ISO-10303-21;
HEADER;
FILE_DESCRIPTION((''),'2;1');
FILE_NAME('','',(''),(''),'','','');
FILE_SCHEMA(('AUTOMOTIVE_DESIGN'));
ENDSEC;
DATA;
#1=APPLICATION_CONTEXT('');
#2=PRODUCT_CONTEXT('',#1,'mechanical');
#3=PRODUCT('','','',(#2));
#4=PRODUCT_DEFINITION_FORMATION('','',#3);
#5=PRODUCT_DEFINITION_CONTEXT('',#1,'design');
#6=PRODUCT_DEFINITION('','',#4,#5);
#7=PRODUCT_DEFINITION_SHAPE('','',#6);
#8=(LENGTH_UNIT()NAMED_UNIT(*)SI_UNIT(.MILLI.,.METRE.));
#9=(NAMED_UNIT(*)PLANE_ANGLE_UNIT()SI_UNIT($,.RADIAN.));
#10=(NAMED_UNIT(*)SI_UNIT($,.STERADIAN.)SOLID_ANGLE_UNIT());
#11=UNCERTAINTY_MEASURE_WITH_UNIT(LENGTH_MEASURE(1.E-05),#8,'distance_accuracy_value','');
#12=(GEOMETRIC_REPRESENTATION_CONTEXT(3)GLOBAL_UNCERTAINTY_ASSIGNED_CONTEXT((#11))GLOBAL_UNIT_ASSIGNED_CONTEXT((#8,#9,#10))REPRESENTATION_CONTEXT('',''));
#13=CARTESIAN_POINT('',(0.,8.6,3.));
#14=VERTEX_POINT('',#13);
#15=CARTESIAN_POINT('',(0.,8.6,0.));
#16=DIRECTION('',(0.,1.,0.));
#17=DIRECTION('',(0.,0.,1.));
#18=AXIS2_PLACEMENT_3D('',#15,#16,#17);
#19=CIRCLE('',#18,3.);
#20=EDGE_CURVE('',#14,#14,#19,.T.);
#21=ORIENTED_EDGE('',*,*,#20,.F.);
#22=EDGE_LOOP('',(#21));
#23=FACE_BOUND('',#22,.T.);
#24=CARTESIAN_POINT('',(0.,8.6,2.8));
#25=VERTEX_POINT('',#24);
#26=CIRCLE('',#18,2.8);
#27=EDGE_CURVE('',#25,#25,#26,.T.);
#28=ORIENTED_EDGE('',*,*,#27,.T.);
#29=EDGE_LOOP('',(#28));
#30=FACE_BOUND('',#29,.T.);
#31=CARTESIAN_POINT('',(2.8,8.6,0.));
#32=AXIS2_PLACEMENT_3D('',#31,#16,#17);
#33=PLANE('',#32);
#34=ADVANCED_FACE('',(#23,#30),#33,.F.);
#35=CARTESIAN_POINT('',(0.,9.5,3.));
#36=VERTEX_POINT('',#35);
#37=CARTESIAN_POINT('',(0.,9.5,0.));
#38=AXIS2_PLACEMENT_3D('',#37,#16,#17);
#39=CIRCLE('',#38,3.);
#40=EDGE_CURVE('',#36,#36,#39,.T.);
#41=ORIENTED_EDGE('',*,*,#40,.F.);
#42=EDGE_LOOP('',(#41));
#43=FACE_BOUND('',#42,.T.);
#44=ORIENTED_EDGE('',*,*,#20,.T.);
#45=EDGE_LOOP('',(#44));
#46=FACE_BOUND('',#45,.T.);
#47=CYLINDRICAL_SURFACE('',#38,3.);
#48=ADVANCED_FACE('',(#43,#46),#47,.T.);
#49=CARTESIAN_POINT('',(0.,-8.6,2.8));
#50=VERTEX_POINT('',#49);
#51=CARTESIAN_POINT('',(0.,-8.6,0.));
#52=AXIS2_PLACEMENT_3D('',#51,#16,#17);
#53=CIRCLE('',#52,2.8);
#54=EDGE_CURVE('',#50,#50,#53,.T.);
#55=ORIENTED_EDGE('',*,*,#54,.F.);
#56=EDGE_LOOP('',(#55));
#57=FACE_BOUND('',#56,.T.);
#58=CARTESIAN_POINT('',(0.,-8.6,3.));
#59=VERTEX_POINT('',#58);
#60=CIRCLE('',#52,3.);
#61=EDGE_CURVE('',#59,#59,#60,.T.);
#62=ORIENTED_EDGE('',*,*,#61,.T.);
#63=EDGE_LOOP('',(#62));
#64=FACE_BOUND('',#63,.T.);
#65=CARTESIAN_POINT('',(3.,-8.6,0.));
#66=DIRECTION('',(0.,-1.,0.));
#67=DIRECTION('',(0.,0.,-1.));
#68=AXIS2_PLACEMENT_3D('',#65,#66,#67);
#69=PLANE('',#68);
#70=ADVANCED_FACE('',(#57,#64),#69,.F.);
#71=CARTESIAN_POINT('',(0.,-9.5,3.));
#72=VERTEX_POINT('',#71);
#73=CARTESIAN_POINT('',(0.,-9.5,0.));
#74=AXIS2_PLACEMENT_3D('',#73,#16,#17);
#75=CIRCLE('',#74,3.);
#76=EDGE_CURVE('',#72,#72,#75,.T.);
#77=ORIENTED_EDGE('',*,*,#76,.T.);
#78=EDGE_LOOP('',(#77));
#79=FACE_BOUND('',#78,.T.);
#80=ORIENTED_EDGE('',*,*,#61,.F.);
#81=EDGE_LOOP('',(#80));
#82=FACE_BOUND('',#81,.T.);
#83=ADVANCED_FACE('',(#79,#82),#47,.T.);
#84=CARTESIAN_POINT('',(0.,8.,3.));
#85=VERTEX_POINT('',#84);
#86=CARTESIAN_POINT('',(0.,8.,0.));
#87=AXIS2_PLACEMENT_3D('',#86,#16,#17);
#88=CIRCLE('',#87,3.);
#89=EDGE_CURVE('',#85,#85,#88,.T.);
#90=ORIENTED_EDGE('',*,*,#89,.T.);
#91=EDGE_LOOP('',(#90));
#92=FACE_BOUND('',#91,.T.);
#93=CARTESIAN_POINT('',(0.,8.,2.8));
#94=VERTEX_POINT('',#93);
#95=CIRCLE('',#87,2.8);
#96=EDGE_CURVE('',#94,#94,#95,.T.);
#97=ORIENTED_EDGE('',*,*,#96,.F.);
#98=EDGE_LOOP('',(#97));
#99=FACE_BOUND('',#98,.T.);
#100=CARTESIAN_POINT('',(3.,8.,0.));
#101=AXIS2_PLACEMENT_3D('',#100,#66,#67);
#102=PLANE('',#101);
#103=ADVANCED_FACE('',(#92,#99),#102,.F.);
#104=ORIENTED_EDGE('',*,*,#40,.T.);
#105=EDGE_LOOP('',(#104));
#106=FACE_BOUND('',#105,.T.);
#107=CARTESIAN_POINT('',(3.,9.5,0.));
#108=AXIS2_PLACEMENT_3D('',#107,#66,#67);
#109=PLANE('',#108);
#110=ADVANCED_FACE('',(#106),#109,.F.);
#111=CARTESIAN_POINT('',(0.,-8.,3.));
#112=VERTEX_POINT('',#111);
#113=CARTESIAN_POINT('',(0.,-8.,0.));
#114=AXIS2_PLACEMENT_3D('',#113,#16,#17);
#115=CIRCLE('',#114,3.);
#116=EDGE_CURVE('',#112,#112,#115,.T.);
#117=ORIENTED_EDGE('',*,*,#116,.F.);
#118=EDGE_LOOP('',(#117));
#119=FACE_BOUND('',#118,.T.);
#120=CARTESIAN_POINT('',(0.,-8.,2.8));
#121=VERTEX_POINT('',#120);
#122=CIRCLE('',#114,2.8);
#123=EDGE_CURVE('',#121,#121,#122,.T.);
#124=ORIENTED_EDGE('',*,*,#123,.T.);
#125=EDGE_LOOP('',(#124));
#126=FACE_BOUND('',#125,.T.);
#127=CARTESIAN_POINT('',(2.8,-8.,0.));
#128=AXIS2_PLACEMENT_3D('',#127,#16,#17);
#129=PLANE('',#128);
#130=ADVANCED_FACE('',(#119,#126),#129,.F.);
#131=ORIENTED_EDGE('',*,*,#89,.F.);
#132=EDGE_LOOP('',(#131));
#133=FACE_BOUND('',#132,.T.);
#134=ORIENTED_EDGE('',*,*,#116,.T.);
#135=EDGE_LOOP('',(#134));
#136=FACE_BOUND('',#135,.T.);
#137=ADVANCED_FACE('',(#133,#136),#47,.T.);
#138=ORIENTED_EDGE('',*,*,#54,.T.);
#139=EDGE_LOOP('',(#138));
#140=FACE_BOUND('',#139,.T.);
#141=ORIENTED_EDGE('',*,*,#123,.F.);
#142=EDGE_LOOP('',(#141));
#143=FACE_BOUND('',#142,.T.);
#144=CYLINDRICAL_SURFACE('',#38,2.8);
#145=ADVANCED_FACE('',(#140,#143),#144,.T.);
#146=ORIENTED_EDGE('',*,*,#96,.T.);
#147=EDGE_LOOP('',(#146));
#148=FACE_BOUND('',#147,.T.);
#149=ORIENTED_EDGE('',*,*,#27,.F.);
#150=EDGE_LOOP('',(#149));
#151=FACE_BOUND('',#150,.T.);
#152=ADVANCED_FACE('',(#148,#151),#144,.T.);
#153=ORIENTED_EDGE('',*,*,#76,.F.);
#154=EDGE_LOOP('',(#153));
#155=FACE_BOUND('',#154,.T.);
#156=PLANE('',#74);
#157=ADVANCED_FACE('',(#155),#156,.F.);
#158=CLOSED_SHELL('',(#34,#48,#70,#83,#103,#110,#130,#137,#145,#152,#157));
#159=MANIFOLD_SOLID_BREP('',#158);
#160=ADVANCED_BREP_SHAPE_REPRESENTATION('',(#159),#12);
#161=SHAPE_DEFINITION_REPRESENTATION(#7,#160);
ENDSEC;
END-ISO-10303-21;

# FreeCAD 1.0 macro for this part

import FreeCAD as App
import Part
import Sketcher

doc = App.newDocument("Part")
body = doc.addObject("PartDesign::Body", "Body")

sketch1 = body.newObject("Sketcher::SketchObject", "Sketch")
sketch1.AttachmentSupport = (doc.getObject("XY_Plane"), [""])
sketch1.MapMode = "FlatFace"
sketch1.addGeometry([
    Part.LineSegment(App.Vector(0, -9.5, 0), App.Vector(3, -9.5, 0)),
    Part.LineSegment(App.Vector(3, -9.5, 0), App.Vector(3, -8.6, 0)),
    Part.LineSegment(App.Vector(3, -8.6, 0), App.Vector(2.8, -8.6, 0)),
    Part.LineSegment(App.Vector(2.8, -8.6, 0), App.Vector(2.8, -8, 0)),
    Part.LineSegment(App.Vector(2.8, -8, 0), App.Vector(3, -8, 0)),
    Part.LineSegment(App.Vector(3, -8, 0), App.Vector(3, 8, 0)),
    Part.LineSegment(App.Vector(3, 8, 0), App.Vector(2.8, 8, 0)),
    Part.LineSegment(App.Vector(2.8, 8, 0), App.Vector(2.8, 8.6, 0)),
    Part.LineSegment(App.Vector(2.8, 8.6, 0), App.Vector(3, 8.6, 0)),
    Part.LineSegment(App.Vector(3, 8.6, 0), App.Vector(3, 9.5, 0)),
    Part.LineSegment(App.Vector(3, 9.5, 0), App.Vector(0, 9.5, 0)),
    Part.LineSegment(App.Vector(0, 9.5, 0), App.Vector(0, -9.5, 0)),
], False)
sketch1.addConstraint([
    Sketcher.Constraint("Coincident", 0, 2, 1, 1),
    Sketcher.Constraint("Coincident", 1, 2, 2, 1),
    Sketcher.Constraint("Coincident", 2, 2, 3, 1),
    Sketcher.Constraint("Coincident", 3, 2, 4, 1),
    Sketcher.Constraint("Coincident", 4, 2, 5, 1),
    Sketcher.Constraint("Coincident", 5, 2, 6, 1),
    Sketcher.Constraint("Coincident", 6, 2, 7, 1),
    Sketcher.Constraint("Coincident", 7, 2, 8, 1),
    Sketcher.Constraint("Coincident", 8, 2, 9, 1),
    Sketcher.Constraint("Coincident", 9, 2, 10, 1),
    Sketcher.Constraint("Coincident", 10, 2, 11, 1),
    Sketcher.Constraint("Coincident", 11, 2, 0, 1),
    Sketcher.Constraint("Horizontal", 0),
    Sketcher.Constraint("Vertical", 1),
    Sketcher.Constraint("Horizontal", 2),
    Sketcher.Constraint("Vertical", 3),
    Sketcher.Constraint("Horizontal", 4),
    Sketcher.Constraint("Vertical", 5),
    Sketcher.Constraint("Horizontal", 6),
    Sketcher.Constraint("Vertical", 7),
    Sketcher.Constraint("Horizontal", 8),
    Sketcher.Constraint("Vertical", 9),
    Sketcher.Constraint("Horizontal", 10),
    Sketcher.Constraint("Vertical", 11),
    Sketcher.Constraint("Symmetric", 10, 2, 11, 2, -1, 1),
    Sketcher.Constraint("Symmetric", 3, 2, 6, 2, -1),
    Sketcher.Constraint("Symmetric", 1, 2, 8, 2, -1),
    Sketcher.Constraint("Vertical", 1, 2, 4, 2),
    Sketcher.Constraint("DistanceX", 0, 1, 0, 2, 3.0),
    Sketcher.Constraint("DistanceY", 5, 1, 5, 2, 16.0),
    Sketcher.Constraint("DistanceY", 11, 2, 11, 1, 19.0),
    Sketcher.Constraint("DistanceX", 2, 2, 2, 1, 0.2),
    Sketcher.Constraint("DistanceY", 1, 1, 1, 2, 0.9),
])
revolution = body.newObject("PartDesign::Revolution", "Revolution")
revolution.Profile = sketch1
revolution.ReferenceAxis = (sketch1, ["V_Axis"])
revolution.Angle = 360

doc.recompute()
